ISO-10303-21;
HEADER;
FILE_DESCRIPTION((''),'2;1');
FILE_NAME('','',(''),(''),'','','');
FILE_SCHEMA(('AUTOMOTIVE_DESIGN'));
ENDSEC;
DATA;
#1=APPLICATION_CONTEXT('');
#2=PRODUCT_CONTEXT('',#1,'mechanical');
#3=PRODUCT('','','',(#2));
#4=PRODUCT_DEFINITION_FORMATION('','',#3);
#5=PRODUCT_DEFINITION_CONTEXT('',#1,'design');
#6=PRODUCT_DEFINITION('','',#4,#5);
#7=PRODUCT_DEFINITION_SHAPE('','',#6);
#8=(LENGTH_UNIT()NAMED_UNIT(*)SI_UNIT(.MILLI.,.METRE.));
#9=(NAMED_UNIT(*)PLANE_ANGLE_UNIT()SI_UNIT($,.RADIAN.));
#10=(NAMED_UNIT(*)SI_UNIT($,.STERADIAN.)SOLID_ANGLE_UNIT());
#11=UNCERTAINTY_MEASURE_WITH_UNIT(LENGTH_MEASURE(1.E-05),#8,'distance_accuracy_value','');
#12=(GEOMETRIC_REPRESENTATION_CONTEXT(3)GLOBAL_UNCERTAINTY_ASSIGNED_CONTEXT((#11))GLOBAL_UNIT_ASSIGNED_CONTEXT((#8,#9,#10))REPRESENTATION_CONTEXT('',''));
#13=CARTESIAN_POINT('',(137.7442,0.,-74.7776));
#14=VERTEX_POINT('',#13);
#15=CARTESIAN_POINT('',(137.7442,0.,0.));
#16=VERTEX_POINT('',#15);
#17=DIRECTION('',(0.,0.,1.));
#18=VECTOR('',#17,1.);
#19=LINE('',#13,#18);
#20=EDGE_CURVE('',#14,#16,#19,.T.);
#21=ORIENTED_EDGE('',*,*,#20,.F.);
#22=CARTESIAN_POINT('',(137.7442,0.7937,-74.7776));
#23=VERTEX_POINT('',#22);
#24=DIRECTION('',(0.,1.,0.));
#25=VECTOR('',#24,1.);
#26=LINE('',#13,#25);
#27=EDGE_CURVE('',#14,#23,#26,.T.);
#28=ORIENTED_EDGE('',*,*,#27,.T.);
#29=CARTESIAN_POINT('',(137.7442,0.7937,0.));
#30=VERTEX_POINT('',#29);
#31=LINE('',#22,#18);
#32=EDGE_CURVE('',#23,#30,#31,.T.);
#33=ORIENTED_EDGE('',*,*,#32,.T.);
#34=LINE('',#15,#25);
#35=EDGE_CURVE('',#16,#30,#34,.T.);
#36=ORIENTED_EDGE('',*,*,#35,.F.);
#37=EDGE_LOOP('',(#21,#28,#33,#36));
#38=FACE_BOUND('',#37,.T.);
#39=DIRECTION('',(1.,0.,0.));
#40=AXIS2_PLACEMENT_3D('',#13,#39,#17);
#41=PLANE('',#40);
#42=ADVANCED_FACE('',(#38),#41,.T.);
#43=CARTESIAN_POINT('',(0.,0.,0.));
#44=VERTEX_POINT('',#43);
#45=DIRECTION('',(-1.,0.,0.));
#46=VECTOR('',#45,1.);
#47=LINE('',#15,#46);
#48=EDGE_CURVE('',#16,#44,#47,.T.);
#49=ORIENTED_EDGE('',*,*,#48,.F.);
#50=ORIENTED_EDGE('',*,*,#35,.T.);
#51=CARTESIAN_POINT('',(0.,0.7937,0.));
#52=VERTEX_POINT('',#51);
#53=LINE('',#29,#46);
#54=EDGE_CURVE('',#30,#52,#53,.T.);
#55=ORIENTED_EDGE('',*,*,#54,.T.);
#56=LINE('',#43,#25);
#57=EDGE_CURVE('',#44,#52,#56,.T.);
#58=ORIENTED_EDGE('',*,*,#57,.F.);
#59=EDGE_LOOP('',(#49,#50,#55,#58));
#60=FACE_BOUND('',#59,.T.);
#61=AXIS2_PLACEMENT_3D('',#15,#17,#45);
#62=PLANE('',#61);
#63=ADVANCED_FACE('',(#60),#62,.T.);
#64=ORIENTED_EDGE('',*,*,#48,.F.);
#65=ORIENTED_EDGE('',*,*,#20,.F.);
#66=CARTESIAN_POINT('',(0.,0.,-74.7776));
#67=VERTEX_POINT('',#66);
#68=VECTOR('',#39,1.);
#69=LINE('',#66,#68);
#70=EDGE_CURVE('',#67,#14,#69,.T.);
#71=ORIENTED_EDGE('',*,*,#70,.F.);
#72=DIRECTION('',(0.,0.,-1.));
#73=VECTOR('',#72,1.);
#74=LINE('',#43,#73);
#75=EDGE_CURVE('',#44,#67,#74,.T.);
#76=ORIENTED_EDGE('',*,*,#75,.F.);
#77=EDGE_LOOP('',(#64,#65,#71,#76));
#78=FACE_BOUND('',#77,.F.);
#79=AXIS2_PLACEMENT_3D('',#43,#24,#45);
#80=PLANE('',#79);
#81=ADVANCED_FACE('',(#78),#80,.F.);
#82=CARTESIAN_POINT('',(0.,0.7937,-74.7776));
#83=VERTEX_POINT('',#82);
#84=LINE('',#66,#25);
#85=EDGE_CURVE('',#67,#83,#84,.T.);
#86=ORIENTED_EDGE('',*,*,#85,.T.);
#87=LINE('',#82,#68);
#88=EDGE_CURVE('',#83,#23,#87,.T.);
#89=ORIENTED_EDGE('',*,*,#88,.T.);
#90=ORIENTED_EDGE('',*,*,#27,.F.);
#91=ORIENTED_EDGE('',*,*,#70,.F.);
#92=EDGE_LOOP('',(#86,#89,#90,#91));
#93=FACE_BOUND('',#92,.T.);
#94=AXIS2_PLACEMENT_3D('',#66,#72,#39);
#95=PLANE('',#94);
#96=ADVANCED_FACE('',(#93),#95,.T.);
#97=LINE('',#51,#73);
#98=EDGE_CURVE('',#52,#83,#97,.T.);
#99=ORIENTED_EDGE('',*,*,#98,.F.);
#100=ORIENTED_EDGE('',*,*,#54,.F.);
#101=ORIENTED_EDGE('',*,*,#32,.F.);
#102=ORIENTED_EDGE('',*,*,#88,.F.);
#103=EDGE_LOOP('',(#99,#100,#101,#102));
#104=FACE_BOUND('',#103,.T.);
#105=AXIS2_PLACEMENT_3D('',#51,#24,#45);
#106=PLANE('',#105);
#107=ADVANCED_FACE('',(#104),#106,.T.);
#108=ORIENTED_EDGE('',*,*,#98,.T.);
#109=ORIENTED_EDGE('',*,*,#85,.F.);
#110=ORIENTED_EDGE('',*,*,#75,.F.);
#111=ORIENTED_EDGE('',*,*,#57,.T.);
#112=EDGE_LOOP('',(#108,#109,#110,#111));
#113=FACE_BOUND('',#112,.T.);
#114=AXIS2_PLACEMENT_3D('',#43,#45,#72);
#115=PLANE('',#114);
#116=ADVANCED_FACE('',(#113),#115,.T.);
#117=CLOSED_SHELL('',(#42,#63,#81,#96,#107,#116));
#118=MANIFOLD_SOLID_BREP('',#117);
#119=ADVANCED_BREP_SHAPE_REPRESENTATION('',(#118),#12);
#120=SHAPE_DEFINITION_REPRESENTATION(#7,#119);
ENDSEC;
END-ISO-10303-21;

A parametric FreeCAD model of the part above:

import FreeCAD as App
import Part
import Sketcher
Q = App.Units.Quantity


def add_polygon(sketch, points):
    """Adds a closed chain of lines whose ends are joined by coincident constraints."""
    first, n = sketch.GeometryCount, len(points)
    for a, b in zip(points, points[1:] + points[:1]):
        sketch.addGeometry(Part.LineSegment(App.Vector(*a, 0), App.Vector(*b, 0)), False)
    for i in range(n):
        sketch.addConstraint(Sketcher.Constraint("Coincident", first + i, 2, first + (i + 1) % n, 1))

doc = App.newDocument("Part")
body = doc.addObject("PartDesign::Body", "Body")

sketch1 = body.newObject("Sketcher::SketchObject", "Sketch")
sketch1.AttachmentSupport = (doc.getObject("XZ_Plane"), [""])
sketch1.MapMode = "FlatFace"
add_polygon(sketch1, [(0, -74.7776), (0, 0), (137.7442, 0), (137.7442, -74.7776)])
sketch1.addConstraint([
    Sketcher.Constraint("Vertical", 0),
    Sketcher.Constraint("Horizontal", 1),
    Sketcher.Constraint("Vertical", 2),
    Sketcher.Constraint("Horizontal", 3),
    Sketcher.Constraint("Coincident", 0, 2, -1, 1),
    Sketcher.Constraint("DistanceX", 1, 1, 1, 2, Q("5.423 in")),
    Sketcher.Constraint("DistanceY", 0, 1, 0, 2, Q("2.944 in")),
])
pad1 = body.newObject("PartDesign::Pad", "Pad")
pad1.Profile = sketch1
pad1.Length = Q("0.031248 in")
pad1.Reversed = True

doc.recompute()
